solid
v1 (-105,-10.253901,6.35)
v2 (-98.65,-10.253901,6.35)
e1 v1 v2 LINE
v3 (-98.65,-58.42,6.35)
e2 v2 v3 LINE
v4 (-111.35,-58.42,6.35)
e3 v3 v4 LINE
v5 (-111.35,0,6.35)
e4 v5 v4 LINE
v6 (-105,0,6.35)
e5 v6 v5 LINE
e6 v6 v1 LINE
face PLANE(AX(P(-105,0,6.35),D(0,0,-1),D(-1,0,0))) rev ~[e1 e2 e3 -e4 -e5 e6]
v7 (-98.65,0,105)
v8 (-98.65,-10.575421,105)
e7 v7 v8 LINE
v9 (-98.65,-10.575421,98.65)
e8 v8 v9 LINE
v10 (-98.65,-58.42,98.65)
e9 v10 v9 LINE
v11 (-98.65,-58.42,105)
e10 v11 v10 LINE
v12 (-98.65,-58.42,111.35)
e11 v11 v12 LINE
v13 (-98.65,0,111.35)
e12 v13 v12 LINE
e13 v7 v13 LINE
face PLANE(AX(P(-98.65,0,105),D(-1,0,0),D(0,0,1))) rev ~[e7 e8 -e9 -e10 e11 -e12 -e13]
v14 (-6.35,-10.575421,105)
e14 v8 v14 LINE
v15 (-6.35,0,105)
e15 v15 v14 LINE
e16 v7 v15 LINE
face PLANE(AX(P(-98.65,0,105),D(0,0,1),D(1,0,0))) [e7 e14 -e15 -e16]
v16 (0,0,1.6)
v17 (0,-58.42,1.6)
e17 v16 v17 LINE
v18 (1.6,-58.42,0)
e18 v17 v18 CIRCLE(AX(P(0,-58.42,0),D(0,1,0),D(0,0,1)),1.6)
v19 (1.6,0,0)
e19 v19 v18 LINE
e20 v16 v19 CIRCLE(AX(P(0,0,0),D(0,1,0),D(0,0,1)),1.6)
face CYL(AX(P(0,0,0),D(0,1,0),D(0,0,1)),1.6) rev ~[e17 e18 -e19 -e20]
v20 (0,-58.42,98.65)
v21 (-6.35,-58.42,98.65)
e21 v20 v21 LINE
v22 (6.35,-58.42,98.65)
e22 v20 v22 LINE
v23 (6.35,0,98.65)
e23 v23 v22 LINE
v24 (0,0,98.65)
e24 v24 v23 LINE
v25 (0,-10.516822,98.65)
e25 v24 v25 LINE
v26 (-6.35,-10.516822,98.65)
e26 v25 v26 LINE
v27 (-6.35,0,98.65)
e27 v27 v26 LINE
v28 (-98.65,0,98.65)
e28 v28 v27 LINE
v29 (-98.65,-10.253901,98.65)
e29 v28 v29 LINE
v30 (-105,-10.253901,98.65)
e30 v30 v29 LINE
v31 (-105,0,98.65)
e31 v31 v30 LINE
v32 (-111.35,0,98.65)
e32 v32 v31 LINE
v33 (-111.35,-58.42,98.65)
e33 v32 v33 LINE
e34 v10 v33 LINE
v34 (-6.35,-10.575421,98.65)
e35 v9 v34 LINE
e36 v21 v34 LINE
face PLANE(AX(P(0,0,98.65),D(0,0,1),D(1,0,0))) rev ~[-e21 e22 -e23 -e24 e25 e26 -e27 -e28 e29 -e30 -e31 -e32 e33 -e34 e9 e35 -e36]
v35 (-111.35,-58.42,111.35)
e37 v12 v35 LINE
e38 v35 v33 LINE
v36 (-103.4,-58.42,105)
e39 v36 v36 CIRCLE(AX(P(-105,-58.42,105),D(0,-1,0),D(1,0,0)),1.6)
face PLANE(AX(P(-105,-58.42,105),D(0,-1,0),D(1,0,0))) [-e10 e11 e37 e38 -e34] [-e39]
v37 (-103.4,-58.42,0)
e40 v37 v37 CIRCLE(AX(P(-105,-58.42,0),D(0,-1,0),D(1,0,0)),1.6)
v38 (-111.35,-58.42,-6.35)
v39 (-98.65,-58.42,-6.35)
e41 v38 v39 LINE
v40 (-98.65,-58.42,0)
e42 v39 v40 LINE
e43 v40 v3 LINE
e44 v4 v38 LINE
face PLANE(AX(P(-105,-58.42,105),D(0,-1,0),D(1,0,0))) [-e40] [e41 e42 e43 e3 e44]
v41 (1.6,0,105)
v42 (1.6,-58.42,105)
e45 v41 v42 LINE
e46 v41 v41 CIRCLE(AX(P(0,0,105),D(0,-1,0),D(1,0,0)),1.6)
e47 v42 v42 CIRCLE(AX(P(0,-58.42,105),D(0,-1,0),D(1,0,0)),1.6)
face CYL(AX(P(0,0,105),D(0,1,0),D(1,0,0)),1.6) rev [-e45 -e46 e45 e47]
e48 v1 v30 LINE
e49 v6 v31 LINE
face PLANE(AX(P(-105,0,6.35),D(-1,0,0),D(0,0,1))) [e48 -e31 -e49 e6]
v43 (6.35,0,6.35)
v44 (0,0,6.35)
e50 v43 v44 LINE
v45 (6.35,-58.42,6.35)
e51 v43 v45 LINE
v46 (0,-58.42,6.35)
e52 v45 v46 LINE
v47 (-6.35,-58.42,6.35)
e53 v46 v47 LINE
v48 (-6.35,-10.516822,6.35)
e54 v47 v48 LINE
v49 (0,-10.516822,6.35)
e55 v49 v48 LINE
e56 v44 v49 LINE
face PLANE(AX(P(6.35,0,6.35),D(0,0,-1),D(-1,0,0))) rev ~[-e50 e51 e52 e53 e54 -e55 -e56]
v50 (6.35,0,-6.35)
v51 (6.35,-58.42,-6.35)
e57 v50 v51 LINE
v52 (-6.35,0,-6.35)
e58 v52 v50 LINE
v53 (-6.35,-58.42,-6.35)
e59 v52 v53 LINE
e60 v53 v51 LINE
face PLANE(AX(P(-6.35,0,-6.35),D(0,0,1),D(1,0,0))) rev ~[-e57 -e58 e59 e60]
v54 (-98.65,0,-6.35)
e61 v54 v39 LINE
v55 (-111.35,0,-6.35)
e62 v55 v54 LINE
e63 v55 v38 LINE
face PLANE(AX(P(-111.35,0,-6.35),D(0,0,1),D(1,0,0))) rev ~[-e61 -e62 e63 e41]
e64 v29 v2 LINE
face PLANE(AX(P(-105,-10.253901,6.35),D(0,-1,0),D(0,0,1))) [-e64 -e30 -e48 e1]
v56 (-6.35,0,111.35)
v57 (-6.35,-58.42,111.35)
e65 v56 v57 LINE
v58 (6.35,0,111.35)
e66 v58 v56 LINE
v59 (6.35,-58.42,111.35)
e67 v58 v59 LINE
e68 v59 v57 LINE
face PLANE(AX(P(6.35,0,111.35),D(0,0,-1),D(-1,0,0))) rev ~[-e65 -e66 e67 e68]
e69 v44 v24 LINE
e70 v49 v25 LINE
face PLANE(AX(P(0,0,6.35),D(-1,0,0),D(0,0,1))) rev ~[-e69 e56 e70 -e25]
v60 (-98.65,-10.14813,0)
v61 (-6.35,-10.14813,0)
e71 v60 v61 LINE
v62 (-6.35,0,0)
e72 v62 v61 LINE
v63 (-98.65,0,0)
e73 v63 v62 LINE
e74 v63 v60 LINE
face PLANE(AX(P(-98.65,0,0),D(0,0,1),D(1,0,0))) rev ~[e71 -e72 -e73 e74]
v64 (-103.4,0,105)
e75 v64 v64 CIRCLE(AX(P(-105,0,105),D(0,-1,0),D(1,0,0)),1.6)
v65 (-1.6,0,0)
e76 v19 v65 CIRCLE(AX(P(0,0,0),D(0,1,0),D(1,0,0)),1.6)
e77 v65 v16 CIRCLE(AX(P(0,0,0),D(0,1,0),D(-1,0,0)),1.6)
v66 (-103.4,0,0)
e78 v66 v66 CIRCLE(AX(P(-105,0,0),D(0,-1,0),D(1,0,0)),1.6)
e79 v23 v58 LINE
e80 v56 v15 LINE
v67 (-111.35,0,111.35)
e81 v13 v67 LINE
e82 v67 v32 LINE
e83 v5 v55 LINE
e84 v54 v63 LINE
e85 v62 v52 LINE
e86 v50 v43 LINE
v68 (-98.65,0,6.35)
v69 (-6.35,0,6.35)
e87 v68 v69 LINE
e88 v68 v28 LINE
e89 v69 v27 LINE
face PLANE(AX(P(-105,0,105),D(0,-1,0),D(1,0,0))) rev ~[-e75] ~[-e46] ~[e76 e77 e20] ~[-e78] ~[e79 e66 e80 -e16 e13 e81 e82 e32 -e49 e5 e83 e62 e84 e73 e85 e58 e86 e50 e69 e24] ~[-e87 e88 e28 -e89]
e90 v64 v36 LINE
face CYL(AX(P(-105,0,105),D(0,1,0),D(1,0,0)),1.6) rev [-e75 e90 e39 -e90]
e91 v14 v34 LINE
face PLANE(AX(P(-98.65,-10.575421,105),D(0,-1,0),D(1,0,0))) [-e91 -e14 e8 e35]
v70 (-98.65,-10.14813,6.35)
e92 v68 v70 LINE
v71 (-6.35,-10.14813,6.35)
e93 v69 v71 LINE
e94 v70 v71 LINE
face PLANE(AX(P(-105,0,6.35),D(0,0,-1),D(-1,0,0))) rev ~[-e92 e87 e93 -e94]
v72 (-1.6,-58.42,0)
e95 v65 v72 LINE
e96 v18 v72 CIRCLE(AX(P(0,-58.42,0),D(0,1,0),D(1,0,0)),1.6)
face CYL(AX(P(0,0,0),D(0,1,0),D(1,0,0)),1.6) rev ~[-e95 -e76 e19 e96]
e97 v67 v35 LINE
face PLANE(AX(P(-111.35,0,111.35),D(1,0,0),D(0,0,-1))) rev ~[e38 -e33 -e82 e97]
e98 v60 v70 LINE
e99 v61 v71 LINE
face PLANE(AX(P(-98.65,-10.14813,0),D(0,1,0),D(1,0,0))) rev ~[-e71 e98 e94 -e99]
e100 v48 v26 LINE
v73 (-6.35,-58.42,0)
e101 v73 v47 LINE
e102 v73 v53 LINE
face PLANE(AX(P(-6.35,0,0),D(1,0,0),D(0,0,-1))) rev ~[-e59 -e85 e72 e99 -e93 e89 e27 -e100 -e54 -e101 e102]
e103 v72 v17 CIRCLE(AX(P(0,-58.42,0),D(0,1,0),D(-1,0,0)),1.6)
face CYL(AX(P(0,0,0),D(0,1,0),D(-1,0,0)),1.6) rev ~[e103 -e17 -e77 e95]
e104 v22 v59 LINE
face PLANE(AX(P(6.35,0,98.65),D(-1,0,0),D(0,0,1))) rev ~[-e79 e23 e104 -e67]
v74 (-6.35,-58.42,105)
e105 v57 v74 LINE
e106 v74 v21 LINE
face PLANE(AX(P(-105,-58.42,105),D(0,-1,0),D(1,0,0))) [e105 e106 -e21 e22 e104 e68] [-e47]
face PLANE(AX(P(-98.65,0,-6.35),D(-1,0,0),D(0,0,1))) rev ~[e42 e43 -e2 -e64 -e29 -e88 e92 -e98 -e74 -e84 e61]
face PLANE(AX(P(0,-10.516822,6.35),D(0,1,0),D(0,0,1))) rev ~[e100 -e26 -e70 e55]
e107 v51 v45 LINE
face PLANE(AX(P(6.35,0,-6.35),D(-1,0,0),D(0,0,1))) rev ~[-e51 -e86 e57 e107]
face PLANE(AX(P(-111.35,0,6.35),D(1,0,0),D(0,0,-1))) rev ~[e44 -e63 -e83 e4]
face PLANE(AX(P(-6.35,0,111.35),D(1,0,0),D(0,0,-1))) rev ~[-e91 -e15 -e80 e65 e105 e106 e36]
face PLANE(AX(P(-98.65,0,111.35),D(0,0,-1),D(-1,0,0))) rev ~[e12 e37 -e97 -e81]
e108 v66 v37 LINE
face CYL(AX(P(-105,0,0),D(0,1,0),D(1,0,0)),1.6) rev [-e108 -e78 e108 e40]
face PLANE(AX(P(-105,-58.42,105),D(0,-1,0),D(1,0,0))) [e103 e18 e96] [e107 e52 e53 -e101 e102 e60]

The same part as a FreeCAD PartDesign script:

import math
import FreeCAD as App
import Part
import Sketcher
Q = App.Units.Quantity

doc = App.newDocument("Part")
body = doc.addObject("PartDesign::Body", "Body")

sketch1 = doc.addObject("Sketcher::SketchObject", "Sketch")
body.addObject(sketch1)
sketch1.AttachmentSupport = (doc.XZ_Plane, [""])
sketch1.MapMode = "FlatFace"
sketch1.addGeometry(Part.LineSegment(App.Vector(-98.7, 0, 0), App.Vector(-6.3, 0, 0)), False)
sketch1.addGeometry(Part.LineSegment(App.Vector(-6.3, 0, 0), App.Vector(-6.3, -6.3, 0)), False)
sketch1.addGeometry(Part.LineSegment(App.Vector(-6.3, -6.3, 0), App.Vector(6.3, -6.3, 0)), False)
sketch1.addGeometry(Part.LineSegment(App.Vector(6.3, -6.3, 0), App.Vector(6.3, 6.3, 0)), False)
sketch1.addGeometry(Part.LineSegment(App.Vector(6.3, 6.3, 0), App.Vector(0, 6.3, 0)), False)
sketch1.addGeometry(Part.LineSegment(App.Vector(0, 6.3, 0), App.Vector(0, 98.7, 0)), False)
sketch1.addGeometry(Part.LineSegment(App.Vector(0, 98.7, 0), App.Vector(6.3, 98.7, 0)), False)
sketch1.addGeometry(Part.LineSegment(App.Vector(6.3, 98.7, 0), App.Vector(6.3, 111.3, 0)), False)
sketch1.addGeometry(Part.LineSegment(App.Vector(6.3, 111.3, 0), App.Vector(-6.3, 111.3, 0)), False)
sketch1.addGeometry(Part.LineSegment(App.Vector(-6.3, 111.3, 0), App.Vector(-6.3, 105, 0)), False)
sketch1.addGeometry(Part.LineSegment(App.Vector(-6.3, 105, 0), App.Vector(-98.7, 105, 0)), False)
sketch1.addGeometry(Part.LineSegment(App.Vector(-98.7, 105, 0), App.Vector(-98.7, 111.3, 0)), False)
sketch1.addGeometry(Part.LineSegment(App.Vector(-98.7, 111.3, 0), App.Vector(-111.3, 111.3, 0)), False)
sketch1.addGeometry(Part.LineSegment(App.Vector(-111.3, 111.3, 0), App.Vector(-111.3, 98.7, 0)), False)
sketch1.addGeometry(Part.LineSegment(App.Vector(-111.3, 98.7, 0), App.Vector(-105, 98.7, 0)), False)
sketch1.addGeometry(Part.LineSegment(App.Vector(-105, 98.7, 0), App.Vector(-105, 6.3, 0)), False)
sketch1.addGeometry(Part.LineSegment(App.Vector(-105, 6.3, 0), App.Vector(-111.3, 6.3, 0)), False)
sketch1.addGeometry(Part.LineSegment(App.Vector(-111.3, 6.3, 0), App.Vector(-111.3, -6.3, 0)), False)
sketch1.addGeometry(Part.LineSegment(App.Vector(-111.3, -6.3, 0), App.Vector(-98.7, -6.3, 0)), False)
sketch1.addGeometry(Part.LineSegment(App.Vector(-98.7, -6.3, 0), App.Vector(-98.7, 0, 0)), False)
sketch1.addGeometry(Part.ArcOfCircle(Part.Circle(App.Vector(0, 0, 0), App.Vector(0, 0, 1), 1.6), math.radians(90), math.radians(180)), False)
sketch1.addGeometry(Part.ArcOfCircle(Part.Circle(App.Vector(0, 0, 0), App.Vector(0, 0, 1), 1.6), math.radians(0), math.radians(90)), False)
sketch1.addGeometry(Part.ArcOfCircle(Part.Circle(App.Vector(0, 0, 0), App.Vector(0, 0, 1), 1.6), math.radians(180), math.radians(360)), False)
sketch1.addGeometry(Part.Circle(App.Vector(-105, 0, 0), App.Vector(0, 0, 1), 1.6), False)
sketch1.addGeometry(Part.Circle(App.Vector(-105, 105, 0), App.Vector(0, 0, 1), 1.6), False)
sketch1.addGeometry(Part.LineSegment(App.Vector(-6.3, 6.3, 0), App.Vector(-98.7, 6.3, 0)), False)
sketch1.addGeometry(Part.LineSegment(App.Vector(-98.7, 6.3, 0), App.Vector(-98.7, 98.7, 0)), False)
sketch1.addGeometry(Part.LineSegment(App.Vector(-98.7, 98.7, 0), App.Vector(-6.3, 98.7, 0)), False)
sketch1.addGeometry(Part.LineSegment(App.Vector(-6.3, 98.7, 0), App.Vector(-6.3, 6.3, 0)), False)
sketch1.addGeometry(Part.Circle(App.Vector(0, 105, 0), App.Vector(0, 0, 1), 1.6), False)
sketch1.addConstraint(Sketcher.Constraint("Coincident", 0, 2, 1, 1))
sketch1.addConstraint(Sketcher.Constraint("Coincident", 1, 2, 2, 1))
sketch1.addConstraint(Sketcher.Constraint("Coincident", 2, 2, 3, 1))
sketch1.addConstraint(Sketcher.Constraint("Coincident", 3, 2, 4, 1))
sketch1.addConstraint(Sketcher.Constraint("Coincident", 4, 2, 5, 1))
sketch1.addConstraint(Sketcher.Constraint("Coincident", 5, 2, 6, 1))
sketch1.addConstraint(Sketcher.Constraint("Coincident", 6, 2, 7, 1))
sketch1.addConstraint(Sketcher.Constraint("Coincident", 7, 2, 8, 1))
sketch1.addConstraint(Sketcher.Constraint("Coincident", 8, 2, 9, 1))
sketch1.addConstraint(Sketcher.Constraint("Coincident", 9, 2, 10, 1))
sketch1.addConstraint(Sketcher.Constraint("Coincident", 10, 2, 11, 1))
sketch1.addConstraint(Sketcher.Constraint("Coincident", 11, 2, 12, 1))
sketch1.addConstraint(Sketcher.Constraint("Coincident", 12, 2, 13, 1))
sketch1.addConstraint(Sketcher.Constraint("Coincident", 13, 2, 14, 1))
sketch1.addConstraint(Sketcher.Constraint("Coincident", 14, 2, 15, 1))
sketch1.addConstraint(Sketcher.Constraint("Coincident", 15, 2, 16, 1))
sketch1.addConstraint(Sketcher.Constraint("Coincident", 16, 2, 17, 1))
sketch1.addConstraint(Sketcher.Constraint("Coincident", 17, 2, 18, 1))
sketch1.addConstraint(Sketcher.Constraint("Coincident", 18, 2, 19, 1))
sketch1.addConstraint(Sketcher.Constraint("Coincident", 19, 2, 0, 1))
sketch1.addConstraint(Sketcher.Constraint("Tangent", 20, 1, 21, 2))
sketch1.addConstraint(Sketcher.Constraint("Tangent", 21, 1, 22, 2))
sketch1.addConstraint(Sketcher.Constraint("Tangent", 22, 1, 20, 2))
sketch1.addConstraint(Sketcher.Constraint("Coincident", 25, 2, 26, 1))
sketch1.addConstraint(Sketcher.Constraint("Coincident", 26, 2, 27, 1))
sketch1.addConstraint(Sketcher.Constraint("Coincident", 27, 2, 28, 1))
sketch1.addConstraint(Sketcher.Constraint("Coincident", 28, 2, 25, 1))
sketch1.addConstraint(Sketcher.Constraint("Horizontal", 0))
sketch1.addConstraint(Sketcher.Constraint("Vertical", 1))
sketch1.addConstraint(Sketcher.Constraint("Horizontal", 2))
sketch1.addConstraint(Sketcher.Constraint("Vertical", 3))
sketch1.addConstraint(Sketcher.Constraint("Horizontal", 4))
sketch1.addConstraint(Sketcher.Constraint("Vertical", 5))
sketch1.addConstraint(Sketcher.Constraint("Horizontal", 6))
sketch1.addConstraint(Sketcher.Constraint("Vertical", 7))
sketch1.addConstraint(Sketcher.Constraint("Horizontal", 8))
sketch1.addConstraint(Sketcher.Constraint("Vertical", 9))
sketch1.addConstraint(Sketcher.Constraint("Horizontal", 10))
sketch1.addConstraint(Sketcher.Constraint("Vertical", 11))
sketch1.addConstraint(Sketcher.Constraint("Horizontal", 12))
sketch1.addConstraint(Sketcher.Constraint("Vertical", 13))
sketch1.addConstraint(Sketcher.Constraint("Horizontal", 14))
sketch1.addConstraint(Sketcher.Constraint("Vertical", 15))
sketch1.addConstraint(Sketcher.Constraint("Horizontal", 16))
sketch1.addConstraint(Sketcher.Constraint("Vertical", 17))
sketch1.addConstraint(Sketcher.Constraint("Horizontal", 18))
sketch1.addConstraint(Sketcher.Constraint("Vertical", 19))
sketch1.addConstraint(Sketcher.Constraint("Horizontal", 25))
sketch1.addConstraint(Sketcher.Constraint("Vertical", 26))
sketch1.addConstraint(Sketcher.Constraint("Horizontal", 27))
sketch1.addConstraint(Sketcher.Constraint("Vertical", 28))
sketch1.addConstraint(Sketcher.Constraint("Coincident", 20, 3, -1, 1))
sketch1.addConstraint(Sketcher.Constraint("Equal", 22, 23))
sketch1.addConstraint(Sketcher.Constraint("Equal", 23, 24))
sketch1.addConstraint(Sketcher.Constraint("Equal", 24, 29))
sketch1.addConstraint(Sketcher.Constraint("Symmetric", 1, 2, 3, 2, -1, 1))
sketch1.addConstraint(Sketcher.Constraint("Symmetric", 2, 2, 28, 2, -1, 1))
sketch1.addConstraint(Sketcher.Constraint("Symmetric", 6, 2, 27, 2, -2))
sketch1.addConstraint(Sketcher.Constraint("Symmetric", 18, 2, 25, 2, -1))
sketch1.addConstraint(Sketcher.Constraint("PointOnObject", 23, 3, -1))
sketch1.addConstraint(Sketcher.Constraint("PointOnObject", 29, 3, -2))
sketch1.addConstraint(Sketcher.Constraint("PointOnObject", 0, 2, -1))
sketch1.addConstraint(Sketcher.Constraint("PointOnObject", 4, 2, -2))
sketch1.addConstraint(Sketcher.Constraint("PointOnObject", 20, 1, -2))
sketch1.addConstraint(Sketcher.Constraint("PointOnObject", 21, 1, -1))
sketch1.addConstraint(Sketcher.Constraint("PointOnObject", 22, 1, -1))
sketch1.addConstraint(Sketcher.Constraint("Horizontal", 24, 3, 29, 3))
sketch1.addConstraint(Sketcher.Constraint("Horizontal", 29, 3, 9, 2))
sketch1.addConstraint(Sketcher.Constraint("Horizontal", 8, 2, 11, 2))
sketch1.addConstraint(Sketcher.Constraint("Horizontal", 6, 2, 13, 2))
sketch1.addConstraint(Sketcher.Constraint("Horizontal", 4, 2, 15, 2))
sketch1.addConstraint(Sketcher.Constraint("Vertical", 23, 3, 24, 3))
sketch1.addConstraint(Sketcher.Constraint("Vertical", 1, 2, 8, 2))
sketch1.addConstraint(Sketcher.Constraint("Vertical", 24, 3, 14, 2))
sketch1.addConstraint(Sketcher.Constraint("Vertical", 13, 2, 16, 2))
sketch1.addConstraint(Sketcher.Constraint("Vertical", 11, 2, 18, 2))
sketch1.addConstraint(Sketcher.Constraint("Equal", 8, 12))
sketch1.addConstraint(Sketcher.Constraint("Equal", 6, 14))
sketch1.addConstraint(Sketcher.Constraint("Equal", 16, 1))
sketch1.addConstraint(Sketcher.Constraint("Equal", 27, 5))
sketch1.addConstraint(Sketcher.Constraint("Equal", 3, 7))
sketch1.addConstraint(Sketcher.Constraint("Equal", 1, 9))
sketch1.addConstraint(Sketcher.Constraint("DistanceX", 2, 1, 2, 2, Q("0.5 in")))
sketch1.addConstraint(Sketcher.Constraint("Diameter", 23, 3.2))
sketch1.addConstraint(Sketcher.Constraint("DistanceX", 0, 1, 0, 2, 92.3))
pad1 = doc.addObject("PartDesign::Pad", "Pad")
body.addObject(pad1)
pad1.Profile = sketch1
pad1.Length = Q("2.3 in")

sketch2 = doc.addObject("Sketcher::SketchObject", "Sketch001")
body.addObject(sketch2)
sketch2.AttachmentSupport = (doc.YZ_Plane, [""])
sketch2.MapMode = "FlatFace"
sketch2.AttachmentOffset = App.Placement(App.Vector(0, 0, -105), App.Rotation())
sketch2.addGeometry(Part.LineSegment(App.Vector(-10, 99, 0), App.Vector(-10, 6, 0)), False)
sketch2.addGeometry(Part.LineSegment(App.Vector(-10, 6, 0), App.Vector(-58, 6, 0)), False)
sketch2.addGeometry(Part.LineSegment(App.Vector(-58, 6, 0), App.Vector(-58, 99, 0)), False)
sketch2.addGeometry(Part.LineSegment(App.Vector(-58, 99, 0), App.Vector(-10, 99, 0)), False)
sketch2.addConstraint(Sketcher.Constraint("Coincident", 0, 2, 1, 1))
sketch2.addConstraint(Sketcher.Constraint("Coincident", 1, 2, 2, 1))
sketch2.addConstraint(Sketcher.Constraint("Coincident", 2, 2, 3, 1))
sketch2.addConstraint(Sketcher.Constraint("Coincident", 3, 2, 0, 1))
sketch2.addConstraint(Sketcher.Constraint("Vertical", 0))
sketch2.addConstraint(Sketcher.Constraint("Horizontal", 1))
sketch2.addConstraint(Sketcher.Constraint("Vertical", 2))
sketch2.addConstraint(Sketcher.Constraint("Horizontal", 3))
sketch2.addConstraint(Sketcher.Constraint("DistanceX", 1, 2, -1, 1, Q("2.3 in")))
sketch2.addConstraint(Sketcher.Constraint("DistanceY", -1, 1, 0, 2, Q("0.25 in")))
sketch2.addConstraint(Sketcher.Constraint("DistanceX", 1, 2, 1, 1, 48.166099))
sketch2.addConstraint(Sketcher.Constraint("DistanceY", 0, 2, 0, 1, 92.3))
pocket1 = doc.addObject("PartDesign::Pocket", "Pocket")
body.addObject(pocket1)
pocket1.Profile = sketch2
pocket1.Length = Q("1 in")
pocket1.Reversed = True

sketch3 = doc.addObject("Sketcher::SketchObject", "Sketch002")
body.addObject(sketch3)
sketch3.AttachmentSupport = (doc.XY_Plane, [""])
sketch3.MapMode = "FlatFace"
sketch3.addGeometry(Part.LineSegment(App.Vector(-99, -58, 0), App.Vector(-99, -10, 0)), False)
sketch3.addGeometry(Part.LineSegment(App.Vector(-99, -10, 0), App.Vector(-6, -10, 0)), False)
sketch3.addGeometry(Part.LineSegment(App.Vector(-6, -10, 0), App.Vector(-6, -58, 0)), False)
sketch3.addGeometry(Part.LineSegment(App.Vector(-6, -58, 0), App.Vector(-99, -58, 0)), False)
sketch3.addConstraint(Sketcher.Constraint("Coincident", 0, 2, 1, 1))
sketch3.addConstraint(Sketcher.Constraint("Coincident", 1, 2, 2, 1))
sketch3.addConstraint(Sketcher.Constraint("Coincident", 2, 2, 3, 1))
sketch3.addConstraint(Sketcher.Constraint("Coincident", 3, 2, 0, 1))
sketch3.addConstraint(Sketcher.Constraint("Vertical", 0))
sketch3.addConstraint(Sketcher.Constraint("Horizontal", 1))
sketch3.addConstraint(Sketcher.Constraint("Vertical", 2))
sketch3.addConstraint(Sketcher.Constraint("Horizontal", 3))
sketch3.addConstraint(Sketcher.Constraint("DistanceY", 2, 2, -1, 1, Q("2.3 in")))
sketch3.addConstraint(Sketcher.Constraint("DistanceX", 1, 2, -1, 1, Q("0.25 in")))
sketch3.addConstraint(Sketcher.Constraint("DistanceX", 1, 1, 1, 2, 92.3))
sketch3.addConstraint(Sketcher.Constraint("DistanceY", 0, 1, 0, 2, 48.27187))
pocket2 = doc.addObject("PartDesign::Pocket", "Pocket001")
body.addObject(pocket2)
pocket2.Profile = sketch3
pocket2.Length = Q("1 in")
pocket2.Reversed = True

sketch4 = doc.addObject("Sketcher::SketchObject", "Sketch003")
body.addObject(sketch4)
sketch4.AttachmentSupport = (doc.YZ_Plane, [""])
sketch4.MapMode = "FlatFace"
sketch4.addGeometry(Part.LineSegment(App.Vector(-58, 99, 0), App.Vector(-58, 6, 0)), False)
sketch4.addGeometry(Part.LineSegment(App.Vector(-58, 6, 0), App.Vector(-11, 6, 0)), False)
sketch4.addGeometry(Part.LineSegment(App.Vector(-11, 6, 0), App.Vector(-11, 99, 0)), False)
sketch4.addGeometry(Part.LineSegment(App.Vector(-11, 99, 0), App.Vector(-58, 99, 0)), False)
sketch4.addConstraint(Sketcher.Constraint("Coincident", 0, 2, 1, 1))
sketch4.addConstraint(Sketcher.Constraint("Coincident", 1, 2, 2, 1))
sketch4.addConstraint(Sketcher.Constraint("Coincident", 2, 2, 3, 1))
sketch4.addConstraint(Sketcher.Constraint("Coincident", 3, 2, 0, 1))
sketch4.addConstraint(Sketcher.Constraint("Vertical", 0))
sketch4.addConstraint(Sketcher.Constraint("Horizontal", 1))
sketch4.addConstraint(Sketcher.Constraint("Vertical", 2))
sketch4.addConstraint(Sketcher.Constraint("Horizontal", 3))
sketch4.addConstraint(Sketcher.Constraint("DistanceX", 0, 2, -1, 1, Q("2.3 in")))
sketch4.addConstraint(Sketcher.Constraint("DistanceY", -1, 1, 0, 2, Q("0.25 in")))
sketch4.addConstraint(Sketcher.Constraint("DistanceY", 0, 2, 0, 1, 92.3))
sketch4.addConstraint(Sketcher.Constraint("DistanceX", 1, 1, 1, 2, 47.903178))
pocket3 = doc.addObject("PartDesign::Pocket", "Pocket002")
body.addObject(pocket3)
pocket3.Profile = sketch4
pocket3.Length = Q("1 in")

sketch5 = doc.addObject("Sketcher::SketchObject", "Sketch004")
body.addObject(sketch5)
sketch5.AttachmentSupport = (doc.XY_Plane, [""])
sketch5.MapMode = "FlatFace"
sketch5.AttachmentOffset = App.Placement(App.Vector(0, 0, 105), App.Rotation())
sketch5.addGeometry(Part.LineSegment(App.Vector(-99, -11, 0), App.Vector(-99, -58, 0)), False)
sketch5.addGeometry(Part.LineSegment(App.Vector(-99, -58, 0), App.Vector(-6, -58, 0)), False)
sketch5.addGeometry(Part.LineSegment(App.Vector(-6, -58, 0), App.Vector(-6, -11, 0)), False)
sketch5.addGeometry(Part.LineSegment(App.Vector(-6, -11, 0), App.Vector(-99, -11, 0)), False)
sketch5.addConstraint(Sketcher.Constraint("Coincident", 0, 2, 1, 1))
sketch5.addConstraint(Sketcher.Constraint("Coincident", 1, 2, 2, 1))
sketch5.addConstraint(Sketcher.Constraint("Coincident", 2, 2, 3, 1))
sketch5.addConstraint(Sketcher.Constraint("Coincident", 3, 2, 0, 1))
sketch5.addConstraint(Sketcher.Constraint("Vertical", 0))
sketch5.addConstraint(Sketcher.Constraint("Horizontal", 1))
sketch5.addConstraint(Sketcher.Constraint("Vertical", 2))
sketch5.addConstraint(Sketcher.Constraint("Horizontal", 3))
sketch5.addConstraint(Sketcher.Constraint("DistanceY", 0, 2, -1, 1, Q("2.3 in")))
sketch5.addConstraint(Sketcher.Constraint("DistanceX", 1, 2, -1, 1, Q("0.25 in")))
sketch5.addConstraint(Sketcher.Constraint("DistanceX", 1, 1, 1, 2, 92.3))
sketch5.addConstraint(Sketcher.Constraint("DistanceY", 0, 2, 0, 1, 47.844579))
pocket4 = doc.addObject("PartDesign::Pocket", "Pocket003")
body.addObject(pocket4)
pocket4.Profile = sketch5
pocket4.Length = Q("1 in")

doc.recompute()
